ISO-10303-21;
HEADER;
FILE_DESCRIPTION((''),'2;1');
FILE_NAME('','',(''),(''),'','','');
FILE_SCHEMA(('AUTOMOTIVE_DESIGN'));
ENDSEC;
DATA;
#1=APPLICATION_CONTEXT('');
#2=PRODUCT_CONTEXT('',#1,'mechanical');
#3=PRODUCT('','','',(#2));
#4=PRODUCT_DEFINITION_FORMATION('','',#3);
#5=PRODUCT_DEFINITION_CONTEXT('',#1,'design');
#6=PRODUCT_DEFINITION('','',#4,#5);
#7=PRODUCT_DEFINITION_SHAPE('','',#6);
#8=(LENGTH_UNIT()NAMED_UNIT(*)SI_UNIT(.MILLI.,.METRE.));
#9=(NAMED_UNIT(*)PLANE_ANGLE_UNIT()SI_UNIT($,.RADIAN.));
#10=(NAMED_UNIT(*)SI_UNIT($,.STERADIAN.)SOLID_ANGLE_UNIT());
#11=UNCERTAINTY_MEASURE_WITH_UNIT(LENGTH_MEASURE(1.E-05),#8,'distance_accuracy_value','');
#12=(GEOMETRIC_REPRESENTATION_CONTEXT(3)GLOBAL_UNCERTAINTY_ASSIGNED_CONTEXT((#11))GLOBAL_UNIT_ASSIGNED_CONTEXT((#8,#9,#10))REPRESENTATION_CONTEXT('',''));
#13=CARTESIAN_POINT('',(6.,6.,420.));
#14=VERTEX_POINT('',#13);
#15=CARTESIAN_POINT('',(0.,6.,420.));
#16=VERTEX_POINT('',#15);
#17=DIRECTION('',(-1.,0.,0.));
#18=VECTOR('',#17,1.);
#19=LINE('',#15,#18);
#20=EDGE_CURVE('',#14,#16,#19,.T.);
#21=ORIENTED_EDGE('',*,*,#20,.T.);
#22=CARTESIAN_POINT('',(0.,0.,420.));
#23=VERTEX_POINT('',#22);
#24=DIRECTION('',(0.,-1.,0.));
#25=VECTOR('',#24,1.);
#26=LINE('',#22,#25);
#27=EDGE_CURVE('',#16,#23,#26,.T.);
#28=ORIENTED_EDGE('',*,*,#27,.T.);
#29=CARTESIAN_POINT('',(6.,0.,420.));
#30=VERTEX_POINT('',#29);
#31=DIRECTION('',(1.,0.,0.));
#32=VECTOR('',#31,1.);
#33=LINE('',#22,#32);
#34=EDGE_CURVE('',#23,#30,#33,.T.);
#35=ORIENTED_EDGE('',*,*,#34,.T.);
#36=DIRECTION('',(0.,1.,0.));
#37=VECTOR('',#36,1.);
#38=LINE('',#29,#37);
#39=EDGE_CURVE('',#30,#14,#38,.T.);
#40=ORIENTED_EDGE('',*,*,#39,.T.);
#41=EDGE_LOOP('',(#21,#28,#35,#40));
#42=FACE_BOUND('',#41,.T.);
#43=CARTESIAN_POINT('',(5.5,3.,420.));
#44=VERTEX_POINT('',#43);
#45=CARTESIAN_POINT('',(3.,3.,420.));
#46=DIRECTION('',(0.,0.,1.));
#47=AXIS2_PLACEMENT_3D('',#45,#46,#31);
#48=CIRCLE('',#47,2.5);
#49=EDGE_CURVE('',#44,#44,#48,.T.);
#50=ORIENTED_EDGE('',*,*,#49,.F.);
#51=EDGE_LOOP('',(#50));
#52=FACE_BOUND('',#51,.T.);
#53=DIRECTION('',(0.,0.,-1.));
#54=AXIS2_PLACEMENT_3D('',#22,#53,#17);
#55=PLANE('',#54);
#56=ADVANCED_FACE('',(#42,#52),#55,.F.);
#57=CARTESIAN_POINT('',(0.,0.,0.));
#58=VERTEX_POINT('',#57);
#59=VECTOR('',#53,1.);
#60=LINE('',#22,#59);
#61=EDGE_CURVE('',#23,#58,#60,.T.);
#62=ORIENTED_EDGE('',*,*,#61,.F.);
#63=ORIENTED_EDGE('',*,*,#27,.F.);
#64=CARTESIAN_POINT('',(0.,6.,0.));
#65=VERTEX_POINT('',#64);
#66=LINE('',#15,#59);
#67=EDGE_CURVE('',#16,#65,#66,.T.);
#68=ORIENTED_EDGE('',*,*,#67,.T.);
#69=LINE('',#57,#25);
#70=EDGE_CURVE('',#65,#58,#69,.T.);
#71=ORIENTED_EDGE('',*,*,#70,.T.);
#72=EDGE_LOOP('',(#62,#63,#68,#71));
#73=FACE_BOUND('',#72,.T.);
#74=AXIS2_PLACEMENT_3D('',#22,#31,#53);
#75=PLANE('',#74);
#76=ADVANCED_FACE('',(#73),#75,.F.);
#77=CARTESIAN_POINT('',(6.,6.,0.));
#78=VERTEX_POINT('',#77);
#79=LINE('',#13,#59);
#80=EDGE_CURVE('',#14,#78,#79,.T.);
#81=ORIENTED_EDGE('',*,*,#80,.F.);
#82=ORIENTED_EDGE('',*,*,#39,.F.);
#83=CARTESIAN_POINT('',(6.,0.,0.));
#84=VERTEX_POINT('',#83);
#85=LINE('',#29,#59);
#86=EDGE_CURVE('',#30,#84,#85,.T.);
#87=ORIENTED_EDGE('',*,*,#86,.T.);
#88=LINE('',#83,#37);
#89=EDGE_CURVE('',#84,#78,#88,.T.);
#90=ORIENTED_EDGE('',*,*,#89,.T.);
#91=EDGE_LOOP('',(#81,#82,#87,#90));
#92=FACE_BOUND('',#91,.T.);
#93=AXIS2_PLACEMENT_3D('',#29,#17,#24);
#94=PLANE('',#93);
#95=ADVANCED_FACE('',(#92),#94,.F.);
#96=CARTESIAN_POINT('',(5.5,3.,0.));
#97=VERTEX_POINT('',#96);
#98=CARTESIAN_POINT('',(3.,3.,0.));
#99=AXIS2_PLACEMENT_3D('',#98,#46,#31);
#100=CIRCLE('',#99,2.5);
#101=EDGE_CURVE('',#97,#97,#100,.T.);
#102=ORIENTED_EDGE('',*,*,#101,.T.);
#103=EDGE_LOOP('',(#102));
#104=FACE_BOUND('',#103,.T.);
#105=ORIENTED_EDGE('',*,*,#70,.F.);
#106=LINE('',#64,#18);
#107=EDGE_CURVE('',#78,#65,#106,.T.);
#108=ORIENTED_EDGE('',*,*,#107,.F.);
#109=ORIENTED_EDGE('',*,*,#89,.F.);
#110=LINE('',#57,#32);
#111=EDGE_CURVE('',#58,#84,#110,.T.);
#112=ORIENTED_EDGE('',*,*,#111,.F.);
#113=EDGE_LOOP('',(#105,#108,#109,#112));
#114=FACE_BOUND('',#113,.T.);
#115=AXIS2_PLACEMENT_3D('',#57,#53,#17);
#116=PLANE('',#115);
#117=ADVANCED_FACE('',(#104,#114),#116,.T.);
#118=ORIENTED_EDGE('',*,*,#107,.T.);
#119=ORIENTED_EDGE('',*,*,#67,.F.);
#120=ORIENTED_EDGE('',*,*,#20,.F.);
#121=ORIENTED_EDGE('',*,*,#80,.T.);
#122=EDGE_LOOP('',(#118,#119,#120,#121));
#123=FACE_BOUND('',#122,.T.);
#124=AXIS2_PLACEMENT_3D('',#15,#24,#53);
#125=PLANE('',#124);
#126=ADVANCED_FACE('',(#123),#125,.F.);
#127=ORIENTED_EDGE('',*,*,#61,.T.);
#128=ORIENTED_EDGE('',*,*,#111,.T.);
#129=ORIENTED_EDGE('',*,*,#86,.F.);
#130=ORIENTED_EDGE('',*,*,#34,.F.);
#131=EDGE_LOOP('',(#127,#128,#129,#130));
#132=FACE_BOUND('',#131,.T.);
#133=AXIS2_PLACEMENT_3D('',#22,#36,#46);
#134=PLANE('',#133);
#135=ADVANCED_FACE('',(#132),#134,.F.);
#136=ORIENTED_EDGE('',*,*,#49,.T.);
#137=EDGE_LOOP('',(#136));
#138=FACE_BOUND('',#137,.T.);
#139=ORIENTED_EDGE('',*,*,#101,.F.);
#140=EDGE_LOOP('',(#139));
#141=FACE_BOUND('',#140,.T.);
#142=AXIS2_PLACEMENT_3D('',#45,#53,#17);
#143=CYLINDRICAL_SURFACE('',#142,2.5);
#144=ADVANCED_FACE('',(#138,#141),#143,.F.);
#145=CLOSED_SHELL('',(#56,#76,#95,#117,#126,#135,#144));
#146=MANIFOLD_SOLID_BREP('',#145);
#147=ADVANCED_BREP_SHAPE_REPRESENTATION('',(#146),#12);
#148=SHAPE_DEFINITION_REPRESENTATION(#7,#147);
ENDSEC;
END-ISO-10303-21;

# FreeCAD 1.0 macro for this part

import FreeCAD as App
import Part
import Sketcher

V = App.Vector


def add_polygon(sketch, points):
    """Adds a closed chain of lines whose ends are joined by coincident constraints."""
    first, n = sketch.GeometryCount, len(points)
    for a, b in zip(points, points[1:] + points[:1]):
        sketch.addGeometry(Part.LineSegment(App.Vector(*a, 0), App.Vector(*b, 0)), False)
    for i in range(n):
        sketch.addConstraint(Sketcher.Constraint("Coincident", first + i, 2, first + (i + 1) % n, 1))

doc = App.newDocument("Part")
body = doc.addObject("PartDesign::Body", "Body")

sketch1 = body.newObject("Sketcher::SketchObject", "Sketch")
sketch1.AttachmentSupport = (doc.getObject("XY_Plane"), [""])
sketch1.MapMode = "FlatFace"
add_polygon(sketch1, [(0, 6), (0, 0), (6, 0), (6, 6)])
sketch1.addGeometry(Part.Circle(V(3, 3, 0), V(0, 0, 1), 2.5), False)
sketch1.addConstraint(Sketcher.Constraint("Vertical", 0))
sketch1.addConstraint(Sketcher.Constraint("Horizontal", 1))
sketch1.addConstraint(Sketcher.Constraint("Vertical", 2))
sketch1.addConstraint(Sketcher.Constraint("Horizontal", 3))
sketch1.addConstraint(Sketcher.Constraint("Coincident", 0, 2, -1, 1))
sketch1.addConstraint(Sketcher.Constraint("Equal", 3, 0))
sketch1.addConstraint(Sketcher.Constraint("Diameter", 4, 5.0))
sketch1.addConstraint(Sketcher.Constraint("DistanceX", 1, 1, 1, 2, 6.0))
sketch1.addConstraint(Sketcher.Constraint("DistanceX", -1, 1, 4, 3, 3.0))
sketch1.addConstraint(Sketcher.Constraint("DistanceY", -1, 1, 4, 3, 3.0))
pad1 = body.newObject("PartDesign::Pad", "Pad")
pad1.Profile = sketch1
pad1.Length = 420

doc.recompute()
